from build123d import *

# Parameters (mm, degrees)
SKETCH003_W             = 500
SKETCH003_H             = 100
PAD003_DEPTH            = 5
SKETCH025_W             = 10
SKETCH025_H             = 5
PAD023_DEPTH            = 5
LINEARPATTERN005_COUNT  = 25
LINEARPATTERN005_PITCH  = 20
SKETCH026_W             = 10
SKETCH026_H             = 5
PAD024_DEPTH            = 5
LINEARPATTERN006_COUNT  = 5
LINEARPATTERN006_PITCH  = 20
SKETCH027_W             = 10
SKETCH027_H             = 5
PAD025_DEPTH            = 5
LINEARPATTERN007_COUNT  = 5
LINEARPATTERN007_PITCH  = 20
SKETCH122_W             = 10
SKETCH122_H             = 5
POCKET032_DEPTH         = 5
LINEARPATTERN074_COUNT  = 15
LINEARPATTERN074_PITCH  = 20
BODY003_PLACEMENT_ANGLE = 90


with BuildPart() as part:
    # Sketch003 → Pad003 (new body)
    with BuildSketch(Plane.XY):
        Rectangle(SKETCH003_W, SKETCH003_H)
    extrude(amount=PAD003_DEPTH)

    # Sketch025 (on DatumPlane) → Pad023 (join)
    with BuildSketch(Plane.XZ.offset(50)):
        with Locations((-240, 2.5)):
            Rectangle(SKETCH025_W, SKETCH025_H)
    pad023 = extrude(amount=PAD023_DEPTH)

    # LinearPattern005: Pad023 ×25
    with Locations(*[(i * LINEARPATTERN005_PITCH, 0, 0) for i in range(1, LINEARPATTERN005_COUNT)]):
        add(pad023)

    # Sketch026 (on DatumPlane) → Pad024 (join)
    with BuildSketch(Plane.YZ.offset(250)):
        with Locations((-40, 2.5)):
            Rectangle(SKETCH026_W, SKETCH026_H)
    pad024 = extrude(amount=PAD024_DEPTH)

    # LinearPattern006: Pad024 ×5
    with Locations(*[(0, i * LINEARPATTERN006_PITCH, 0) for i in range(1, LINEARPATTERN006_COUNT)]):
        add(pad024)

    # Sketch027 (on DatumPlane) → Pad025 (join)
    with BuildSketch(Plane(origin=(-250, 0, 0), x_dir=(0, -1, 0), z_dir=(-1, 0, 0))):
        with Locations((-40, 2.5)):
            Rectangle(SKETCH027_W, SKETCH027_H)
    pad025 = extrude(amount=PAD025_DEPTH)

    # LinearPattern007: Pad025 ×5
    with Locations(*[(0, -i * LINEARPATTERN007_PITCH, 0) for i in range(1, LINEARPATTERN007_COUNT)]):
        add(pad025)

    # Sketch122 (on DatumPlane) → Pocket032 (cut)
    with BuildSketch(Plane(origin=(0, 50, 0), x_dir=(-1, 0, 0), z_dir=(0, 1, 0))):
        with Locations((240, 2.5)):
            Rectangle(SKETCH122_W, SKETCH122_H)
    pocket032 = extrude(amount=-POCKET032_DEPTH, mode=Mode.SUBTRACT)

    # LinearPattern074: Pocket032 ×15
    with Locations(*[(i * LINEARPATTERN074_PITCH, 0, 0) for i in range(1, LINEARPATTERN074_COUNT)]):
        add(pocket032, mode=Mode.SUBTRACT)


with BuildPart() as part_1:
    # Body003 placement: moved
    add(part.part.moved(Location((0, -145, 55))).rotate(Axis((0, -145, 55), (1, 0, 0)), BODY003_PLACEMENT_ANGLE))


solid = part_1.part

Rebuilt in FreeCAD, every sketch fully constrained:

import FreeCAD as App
import Part
import Sketcher
Q = App.Units.Quantity


def add_polygon(sketch, points):
    """Adds a closed chain of lines whose ends are joined by coincident constraints."""
    first, n = sketch.GeometryCount, len(points)
    for a, b in zip(points, points[1:] + points[:1]):
        sketch.addGeometry(Part.LineSegment(App.Vector(*a, 0), App.Vector(*b, 0)), False)
    for i in range(n):
        sketch.addConstraint(Sketcher.Constraint("Coincident", first + i, 2, first + (i + 1) % n, 1))

doc = App.newDocument("Part")
body = doc.addObject("PartDesign::Body", "Body")

# Sketch on XY plane
sketch1 = body.newObject("Sketcher::SketchObject", "Sketch")
sketch1.AttachmentSupport = (doc.getObject("XY_Plane"), [""])
sketch1.MapMode = "FlatFace"
add_polygon(sketch1, [(-250, 50), (-250, -50), (250, -50), (250, 50)])  # lines 0-3
sketch1.addConstraint([
    Sketcher.Constraint("Vertical", 0),
    Sketcher.Constraint("Horizontal", 1),
    Sketcher.Constraint("Vertical", 2),
    Sketcher.Constraint("Horizontal", 3),
    Sketcher.Constraint("Symmetric", 0, 2, 2, 2, -1, 1),
    Sketcher.Constraint("DistanceX", 1, 1, 1, 2, Q("500 mm")),
    Sketcher.Constraint("DistanceY", 0, 2, 0, 1, Q("100 mm")),
])
pad1 = body.newObject("PartDesign::Pad", "Pad")
pad1.Profile = sketch1
pad1.Length = 5

# Sketch on XZ plane
sketch2 = body.newObject("Sketcher::SketchObject", "Sketch001")
sketch2.AttachmentSupport = (doc.getObject("XZ_Plane"), [""])
sketch2.MapMode = "FlatFace"
sketch2.AttachmentOffset = App.Placement(App.Vector(0, 0, 50), App.Rotation())
add_polygon(sketch2, [(-245, 5), (-245, 0), (-235, 0), (-235, 5)])  # lines 0-3
sketch2.addConstraint([
    Sketcher.Constraint("Vertical", 0),
    Sketcher.Constraint("Horizontal", 1),
    Sketcher.Constraint("Vertical", 2),
    Sketcher.Constraint("Horizontal", 3),
    Sketcher.Constraint("PointOnObject", 0, 2, -1),
    Sketcher.Constraint("DistanceX", 1, 1, 1, 2, Q("10 mm")),
    Sketcher.Constraint("DistanceY", 0, 2, 0, 1, Q("5 mm")),
    Sketcher.Constraint("DistanceX", 0, 2, -1, 1, Q("245 mm")),
])
pad2 = body.newObject("PartDesign::Pad", "Pad001")
pad2.Profile = sketch2
pad2.Length = 5
doc.recompute()

linearpattern = body.newObject("PartDesign::LinearPattern", "LinearPattern")
linearpattern.Originals = [pad2]
linearpattern.Direction = (doc.getObject("X_Axis"), [""])
linearpattern.Mode = "offset"
linearpattern.Offset = 20
linearpattern.Occurrences = 25
body.Tip = linearpattern

# Sketch on YZ plane
sketch3 = body.newObject("Sketcher::SketchObject", "Sketch002")
sketch3.AttachmentSupport = (doc.getObject("YZ_Plane"), [""])
sketch3.MapMode = "FlatFace"
sketch3.AttachmentOffset = App.Placement(App.Vector(0, 0, 250), App.Rotation())
add_polygon(sketch3, [(-45, 5), (-45, 0), (-35, 0), (-35, 5)])  # lines 0-3
sketch3.addConstraint([
    Sketcher.Constraint("Vertical", 0),
    Sketcher.Constraint("Horizontal", 1),
    Sketcher.Constraint("Vertical", 2),
    Sketcher.Constraint("Horizontal", 3),
    Sketcher.Constraint("PointOnObject", 0, 2, -1),
    Sketcher.Constraint("DistanceX", 1, 1, 1, 2, Q("10 mm")),
    Sketcher.Constraint("DistanceY", 0, 2, 0, 1, Q("5 mm")),
    Sketcher.Constraint("DistanceX", 0, 2, -1, 1, Q("45 mm")),
])
pad3 = body.newObject("PartDesign::Pad", "Pad002")
pad3.Profile = sketch3
pad3.Length = 5
doc.recompute()

linearpattern2 = body.newObject("PartDesign::LinearPattern", "LinearPattern001")
linearpattern2.Originals = [pad3]
linearpattern2.Direction = (doc.getObject("Y_Axis"), [""])
linearpattern2.Mode = "offset"
linearpattern2.Offset = 20
linearpattern2.Occurrences = 5
body.Tip = linearpattern2

# Sketch on YZ plane
sketch4 = body.newObject("Sketcher::SketchObject", "Sketch003")
sketch4.AttachmentSupport = (doc.getObject("YZ_Plane"), [""])
sketch4.MapMode = "FlatFace"
sketch4.AttachmentOffset = App.Placement(App.Vector(0, 0, -250), App.Rotation())
add_polygon(sketch4, [(45, 5), (45, 0), (35, 0), (35, 5)])  # lines 0-3
sketch4.addConstraint([
    Sketcher.Constraint("Vertical", 0),
    Sketcher.Constraint("Horizontal", 1),
    Sketcher.Constraint("Vertical", 2),
    Sketcher.Constraint("Horizontal", 3),
    Sketcher.Constraint("PointOnObject", 0, 2, -1),
    Sketcher.Constraint("DistanceX", 1, 2, 1, 1, Q("10 mm")),
    Sketcher.Constraint("DistanceY", 0, 2, 0, 1, Q("5 mm")),
    Sketcher.Constraint("DistanceX", -1, 1, 0, 2, Q("45 mm")),
])
pad4 = body.newObject("PartDesign::Pad", "Pad003")
pad4.Profile = sketch4
pad4.Length = 5
pad4.Reversed = True
doc.recompute()

linearpattern3 = body.newObject("PartDesign::LinearPattern", "LinearPattern002")
linearpattern3.Originals = [pad4]
linearpattern3.Direction = (doc.getObject("Y_Axis"), [""])
linearpattern3.Mode = "offset"
linearpattern3.Offset = 20
linearpattern3.Occurrences = 5
linearpattern3.Reversed = True
body.Tip = linearpattern3

# Sketch on XZ plane
sketch5 = body.newObject("Sketcher::SketchObject", "Sketch004")
sketch5.AttachmentSupport = (doc.getObject("XZ_Plane"), [""])
sketch5.MapMode = "FlatFace"
sketch5.AttachmentOffset = App.Placement(App.Vector(0, 0, -50), App.Rotation())
add_polygon(sketch5, [(-235, 5), (-235, 0), (-245, 0), (-245, 5)])  # lines 0-3
sketch5.addConstraint([
    Sketcher.Constraint("Vertical", 0),
    Sketcher.Constraint("Horizontal", 1),
    Sketcher.Constraint("Vertical", 2),
    Sketcher.Constraint("Horizontal", 3),
    Sketcher.Constraint("PointOnObject", 0, 2, -1),
    Sketcher.Constraint("DistanceX", 1, 2, 1, 1, Q("10 mm")),
    Sketcher.Constraint("DistanceY", 0, 2, 0, 1, Q("5 mm")),
    Sketcher.Constraint("DistanceX", 0, 2, -1, 1, Q("235 mm")),
])
pocket1 = body.newObject("PartDesign::Pocket", "Pocket")
pocket1.Profile = sketch5
pocket1.Length = 5
pocket1.Reversed = True
doc.recompute()

linearpattern4 = body.newObject("PartDesign::LinearPattern", "LinearPattern003")
linearpattern4.Originals = [pocket1]
linearpattern4.Direction = (doc.getObject("X_Axis"), [""])
linearpattern4.Mode = "offset"
linearpattern4.Offset = 20
linearpattern4.Occurrences = 15
body.Tip = linearpattern4
body2 = doc.addObject("PartDesign::Body", "Body001")
doc.recompute()

body.Placement = App.Placement(App.Vector(0, -145, 55), App.Rotation(App.Vector(1, 0, 0), 90))
boolean = body2.newObject("PartDesign::Boolean", "Boolean")
boolean.Type = "Fuse"
boolean.addObjects([body])

doc.recompute()
